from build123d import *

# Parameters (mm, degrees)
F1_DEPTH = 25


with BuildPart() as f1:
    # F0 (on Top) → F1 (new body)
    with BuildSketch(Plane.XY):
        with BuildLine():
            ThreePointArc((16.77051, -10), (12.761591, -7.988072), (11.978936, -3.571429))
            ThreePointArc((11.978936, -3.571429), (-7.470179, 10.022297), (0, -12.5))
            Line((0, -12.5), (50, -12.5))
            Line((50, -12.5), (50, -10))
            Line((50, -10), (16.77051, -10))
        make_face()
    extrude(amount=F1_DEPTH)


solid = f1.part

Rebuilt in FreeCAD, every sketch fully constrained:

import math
import FreeCAD as App
import Part
import Sketcher
from FreeCAD import Vector

doc = App.newDocument("Part")
body = doc.addObject("PartDesign::Body", "Body")

# Sketch on XY plane
sketch1 = body.newObject("Sketcher::SketchObject", "Sketch")
sketch1.AttachmentSupport = (doc.getObject("XY_Plane"), [""])
sketch1.MapMode = "FlatFace"
sketch1.addGeometry(Part.ArcOfCircle(Part.Circle(Vector(16.770509, -5.000001, 0), Vector(0, 0, 1), 4.999999), math.radians(163.398436), math.radians(270.000016)), False)
sketch1.addGeometry(Part.ArcOfCircle(Part.Circle(Vector(0, 0, 0), Vector(0, 0, 1), 12.5), math.radians(-16.601553), math.radians(269.999999)), False)
sketch1.addGeometry(Part.LineSegment(Vector(0, -12.5, 0), Vector(50, -12.5, 0)), False)
sketch1.addGeometry(Part.LineSegment(Vector(50, -12.5, 0), Vector(50, -10, 0)), False)
sketch1.addGeometry(Part.LineSegment(Vector(50, -10, 0), Vector(16.77051, -10, 0)), False)
sketch1.addConstraint(Sketcher.Constraint("Tangent", 0, 1, 1, 1))
sketch1.addConstraint(Sketcher.Constraint("Tangent", 1, 2, 2, 1))
sketch1.addConstraint(Sketcher.Constraint("Coincident", 2, 2, 3, 1))
sketch1.addConstraint(Sketcher.Constraint("Coincident", 3, 2, 4, 1))
sketch1.addConstraint(Sketcher.Constraint("Tangent", 4, 2, 0, 2))
sketch1.addConstraint(Sketcher.Constraint("Horizontal", 2))
sketch1.addConstraint(Sketcher.Constraint("Vertical", 3))
sketch1.addConstraint(Sketcher.Constraint("Horizontal", 4))
sketch1.addConstraint(Sketcher.Constraint("Coincident", 1, 3, -1, 1))
sketch1.addConstraint(Sketcher.Constraint("Radius", 0, 4.999999))
sketch1.addConstraint(Sketcher.Constraint("Radius", 1, 12.5))
sketch1.addConstraint(Sketcher.Constraint("DistanceX", 2, 1, 2, 2, 50.0))
sketch1.addConstraint(Sketcher.Constraint("DistanceY", 3, 1, 3, 2, 2.5))
pad1 = body.newObject("PartDesign::Pad", "Pad")
pad1.Profile = sketch1
pad1.Length = 25

doc.recompute()
